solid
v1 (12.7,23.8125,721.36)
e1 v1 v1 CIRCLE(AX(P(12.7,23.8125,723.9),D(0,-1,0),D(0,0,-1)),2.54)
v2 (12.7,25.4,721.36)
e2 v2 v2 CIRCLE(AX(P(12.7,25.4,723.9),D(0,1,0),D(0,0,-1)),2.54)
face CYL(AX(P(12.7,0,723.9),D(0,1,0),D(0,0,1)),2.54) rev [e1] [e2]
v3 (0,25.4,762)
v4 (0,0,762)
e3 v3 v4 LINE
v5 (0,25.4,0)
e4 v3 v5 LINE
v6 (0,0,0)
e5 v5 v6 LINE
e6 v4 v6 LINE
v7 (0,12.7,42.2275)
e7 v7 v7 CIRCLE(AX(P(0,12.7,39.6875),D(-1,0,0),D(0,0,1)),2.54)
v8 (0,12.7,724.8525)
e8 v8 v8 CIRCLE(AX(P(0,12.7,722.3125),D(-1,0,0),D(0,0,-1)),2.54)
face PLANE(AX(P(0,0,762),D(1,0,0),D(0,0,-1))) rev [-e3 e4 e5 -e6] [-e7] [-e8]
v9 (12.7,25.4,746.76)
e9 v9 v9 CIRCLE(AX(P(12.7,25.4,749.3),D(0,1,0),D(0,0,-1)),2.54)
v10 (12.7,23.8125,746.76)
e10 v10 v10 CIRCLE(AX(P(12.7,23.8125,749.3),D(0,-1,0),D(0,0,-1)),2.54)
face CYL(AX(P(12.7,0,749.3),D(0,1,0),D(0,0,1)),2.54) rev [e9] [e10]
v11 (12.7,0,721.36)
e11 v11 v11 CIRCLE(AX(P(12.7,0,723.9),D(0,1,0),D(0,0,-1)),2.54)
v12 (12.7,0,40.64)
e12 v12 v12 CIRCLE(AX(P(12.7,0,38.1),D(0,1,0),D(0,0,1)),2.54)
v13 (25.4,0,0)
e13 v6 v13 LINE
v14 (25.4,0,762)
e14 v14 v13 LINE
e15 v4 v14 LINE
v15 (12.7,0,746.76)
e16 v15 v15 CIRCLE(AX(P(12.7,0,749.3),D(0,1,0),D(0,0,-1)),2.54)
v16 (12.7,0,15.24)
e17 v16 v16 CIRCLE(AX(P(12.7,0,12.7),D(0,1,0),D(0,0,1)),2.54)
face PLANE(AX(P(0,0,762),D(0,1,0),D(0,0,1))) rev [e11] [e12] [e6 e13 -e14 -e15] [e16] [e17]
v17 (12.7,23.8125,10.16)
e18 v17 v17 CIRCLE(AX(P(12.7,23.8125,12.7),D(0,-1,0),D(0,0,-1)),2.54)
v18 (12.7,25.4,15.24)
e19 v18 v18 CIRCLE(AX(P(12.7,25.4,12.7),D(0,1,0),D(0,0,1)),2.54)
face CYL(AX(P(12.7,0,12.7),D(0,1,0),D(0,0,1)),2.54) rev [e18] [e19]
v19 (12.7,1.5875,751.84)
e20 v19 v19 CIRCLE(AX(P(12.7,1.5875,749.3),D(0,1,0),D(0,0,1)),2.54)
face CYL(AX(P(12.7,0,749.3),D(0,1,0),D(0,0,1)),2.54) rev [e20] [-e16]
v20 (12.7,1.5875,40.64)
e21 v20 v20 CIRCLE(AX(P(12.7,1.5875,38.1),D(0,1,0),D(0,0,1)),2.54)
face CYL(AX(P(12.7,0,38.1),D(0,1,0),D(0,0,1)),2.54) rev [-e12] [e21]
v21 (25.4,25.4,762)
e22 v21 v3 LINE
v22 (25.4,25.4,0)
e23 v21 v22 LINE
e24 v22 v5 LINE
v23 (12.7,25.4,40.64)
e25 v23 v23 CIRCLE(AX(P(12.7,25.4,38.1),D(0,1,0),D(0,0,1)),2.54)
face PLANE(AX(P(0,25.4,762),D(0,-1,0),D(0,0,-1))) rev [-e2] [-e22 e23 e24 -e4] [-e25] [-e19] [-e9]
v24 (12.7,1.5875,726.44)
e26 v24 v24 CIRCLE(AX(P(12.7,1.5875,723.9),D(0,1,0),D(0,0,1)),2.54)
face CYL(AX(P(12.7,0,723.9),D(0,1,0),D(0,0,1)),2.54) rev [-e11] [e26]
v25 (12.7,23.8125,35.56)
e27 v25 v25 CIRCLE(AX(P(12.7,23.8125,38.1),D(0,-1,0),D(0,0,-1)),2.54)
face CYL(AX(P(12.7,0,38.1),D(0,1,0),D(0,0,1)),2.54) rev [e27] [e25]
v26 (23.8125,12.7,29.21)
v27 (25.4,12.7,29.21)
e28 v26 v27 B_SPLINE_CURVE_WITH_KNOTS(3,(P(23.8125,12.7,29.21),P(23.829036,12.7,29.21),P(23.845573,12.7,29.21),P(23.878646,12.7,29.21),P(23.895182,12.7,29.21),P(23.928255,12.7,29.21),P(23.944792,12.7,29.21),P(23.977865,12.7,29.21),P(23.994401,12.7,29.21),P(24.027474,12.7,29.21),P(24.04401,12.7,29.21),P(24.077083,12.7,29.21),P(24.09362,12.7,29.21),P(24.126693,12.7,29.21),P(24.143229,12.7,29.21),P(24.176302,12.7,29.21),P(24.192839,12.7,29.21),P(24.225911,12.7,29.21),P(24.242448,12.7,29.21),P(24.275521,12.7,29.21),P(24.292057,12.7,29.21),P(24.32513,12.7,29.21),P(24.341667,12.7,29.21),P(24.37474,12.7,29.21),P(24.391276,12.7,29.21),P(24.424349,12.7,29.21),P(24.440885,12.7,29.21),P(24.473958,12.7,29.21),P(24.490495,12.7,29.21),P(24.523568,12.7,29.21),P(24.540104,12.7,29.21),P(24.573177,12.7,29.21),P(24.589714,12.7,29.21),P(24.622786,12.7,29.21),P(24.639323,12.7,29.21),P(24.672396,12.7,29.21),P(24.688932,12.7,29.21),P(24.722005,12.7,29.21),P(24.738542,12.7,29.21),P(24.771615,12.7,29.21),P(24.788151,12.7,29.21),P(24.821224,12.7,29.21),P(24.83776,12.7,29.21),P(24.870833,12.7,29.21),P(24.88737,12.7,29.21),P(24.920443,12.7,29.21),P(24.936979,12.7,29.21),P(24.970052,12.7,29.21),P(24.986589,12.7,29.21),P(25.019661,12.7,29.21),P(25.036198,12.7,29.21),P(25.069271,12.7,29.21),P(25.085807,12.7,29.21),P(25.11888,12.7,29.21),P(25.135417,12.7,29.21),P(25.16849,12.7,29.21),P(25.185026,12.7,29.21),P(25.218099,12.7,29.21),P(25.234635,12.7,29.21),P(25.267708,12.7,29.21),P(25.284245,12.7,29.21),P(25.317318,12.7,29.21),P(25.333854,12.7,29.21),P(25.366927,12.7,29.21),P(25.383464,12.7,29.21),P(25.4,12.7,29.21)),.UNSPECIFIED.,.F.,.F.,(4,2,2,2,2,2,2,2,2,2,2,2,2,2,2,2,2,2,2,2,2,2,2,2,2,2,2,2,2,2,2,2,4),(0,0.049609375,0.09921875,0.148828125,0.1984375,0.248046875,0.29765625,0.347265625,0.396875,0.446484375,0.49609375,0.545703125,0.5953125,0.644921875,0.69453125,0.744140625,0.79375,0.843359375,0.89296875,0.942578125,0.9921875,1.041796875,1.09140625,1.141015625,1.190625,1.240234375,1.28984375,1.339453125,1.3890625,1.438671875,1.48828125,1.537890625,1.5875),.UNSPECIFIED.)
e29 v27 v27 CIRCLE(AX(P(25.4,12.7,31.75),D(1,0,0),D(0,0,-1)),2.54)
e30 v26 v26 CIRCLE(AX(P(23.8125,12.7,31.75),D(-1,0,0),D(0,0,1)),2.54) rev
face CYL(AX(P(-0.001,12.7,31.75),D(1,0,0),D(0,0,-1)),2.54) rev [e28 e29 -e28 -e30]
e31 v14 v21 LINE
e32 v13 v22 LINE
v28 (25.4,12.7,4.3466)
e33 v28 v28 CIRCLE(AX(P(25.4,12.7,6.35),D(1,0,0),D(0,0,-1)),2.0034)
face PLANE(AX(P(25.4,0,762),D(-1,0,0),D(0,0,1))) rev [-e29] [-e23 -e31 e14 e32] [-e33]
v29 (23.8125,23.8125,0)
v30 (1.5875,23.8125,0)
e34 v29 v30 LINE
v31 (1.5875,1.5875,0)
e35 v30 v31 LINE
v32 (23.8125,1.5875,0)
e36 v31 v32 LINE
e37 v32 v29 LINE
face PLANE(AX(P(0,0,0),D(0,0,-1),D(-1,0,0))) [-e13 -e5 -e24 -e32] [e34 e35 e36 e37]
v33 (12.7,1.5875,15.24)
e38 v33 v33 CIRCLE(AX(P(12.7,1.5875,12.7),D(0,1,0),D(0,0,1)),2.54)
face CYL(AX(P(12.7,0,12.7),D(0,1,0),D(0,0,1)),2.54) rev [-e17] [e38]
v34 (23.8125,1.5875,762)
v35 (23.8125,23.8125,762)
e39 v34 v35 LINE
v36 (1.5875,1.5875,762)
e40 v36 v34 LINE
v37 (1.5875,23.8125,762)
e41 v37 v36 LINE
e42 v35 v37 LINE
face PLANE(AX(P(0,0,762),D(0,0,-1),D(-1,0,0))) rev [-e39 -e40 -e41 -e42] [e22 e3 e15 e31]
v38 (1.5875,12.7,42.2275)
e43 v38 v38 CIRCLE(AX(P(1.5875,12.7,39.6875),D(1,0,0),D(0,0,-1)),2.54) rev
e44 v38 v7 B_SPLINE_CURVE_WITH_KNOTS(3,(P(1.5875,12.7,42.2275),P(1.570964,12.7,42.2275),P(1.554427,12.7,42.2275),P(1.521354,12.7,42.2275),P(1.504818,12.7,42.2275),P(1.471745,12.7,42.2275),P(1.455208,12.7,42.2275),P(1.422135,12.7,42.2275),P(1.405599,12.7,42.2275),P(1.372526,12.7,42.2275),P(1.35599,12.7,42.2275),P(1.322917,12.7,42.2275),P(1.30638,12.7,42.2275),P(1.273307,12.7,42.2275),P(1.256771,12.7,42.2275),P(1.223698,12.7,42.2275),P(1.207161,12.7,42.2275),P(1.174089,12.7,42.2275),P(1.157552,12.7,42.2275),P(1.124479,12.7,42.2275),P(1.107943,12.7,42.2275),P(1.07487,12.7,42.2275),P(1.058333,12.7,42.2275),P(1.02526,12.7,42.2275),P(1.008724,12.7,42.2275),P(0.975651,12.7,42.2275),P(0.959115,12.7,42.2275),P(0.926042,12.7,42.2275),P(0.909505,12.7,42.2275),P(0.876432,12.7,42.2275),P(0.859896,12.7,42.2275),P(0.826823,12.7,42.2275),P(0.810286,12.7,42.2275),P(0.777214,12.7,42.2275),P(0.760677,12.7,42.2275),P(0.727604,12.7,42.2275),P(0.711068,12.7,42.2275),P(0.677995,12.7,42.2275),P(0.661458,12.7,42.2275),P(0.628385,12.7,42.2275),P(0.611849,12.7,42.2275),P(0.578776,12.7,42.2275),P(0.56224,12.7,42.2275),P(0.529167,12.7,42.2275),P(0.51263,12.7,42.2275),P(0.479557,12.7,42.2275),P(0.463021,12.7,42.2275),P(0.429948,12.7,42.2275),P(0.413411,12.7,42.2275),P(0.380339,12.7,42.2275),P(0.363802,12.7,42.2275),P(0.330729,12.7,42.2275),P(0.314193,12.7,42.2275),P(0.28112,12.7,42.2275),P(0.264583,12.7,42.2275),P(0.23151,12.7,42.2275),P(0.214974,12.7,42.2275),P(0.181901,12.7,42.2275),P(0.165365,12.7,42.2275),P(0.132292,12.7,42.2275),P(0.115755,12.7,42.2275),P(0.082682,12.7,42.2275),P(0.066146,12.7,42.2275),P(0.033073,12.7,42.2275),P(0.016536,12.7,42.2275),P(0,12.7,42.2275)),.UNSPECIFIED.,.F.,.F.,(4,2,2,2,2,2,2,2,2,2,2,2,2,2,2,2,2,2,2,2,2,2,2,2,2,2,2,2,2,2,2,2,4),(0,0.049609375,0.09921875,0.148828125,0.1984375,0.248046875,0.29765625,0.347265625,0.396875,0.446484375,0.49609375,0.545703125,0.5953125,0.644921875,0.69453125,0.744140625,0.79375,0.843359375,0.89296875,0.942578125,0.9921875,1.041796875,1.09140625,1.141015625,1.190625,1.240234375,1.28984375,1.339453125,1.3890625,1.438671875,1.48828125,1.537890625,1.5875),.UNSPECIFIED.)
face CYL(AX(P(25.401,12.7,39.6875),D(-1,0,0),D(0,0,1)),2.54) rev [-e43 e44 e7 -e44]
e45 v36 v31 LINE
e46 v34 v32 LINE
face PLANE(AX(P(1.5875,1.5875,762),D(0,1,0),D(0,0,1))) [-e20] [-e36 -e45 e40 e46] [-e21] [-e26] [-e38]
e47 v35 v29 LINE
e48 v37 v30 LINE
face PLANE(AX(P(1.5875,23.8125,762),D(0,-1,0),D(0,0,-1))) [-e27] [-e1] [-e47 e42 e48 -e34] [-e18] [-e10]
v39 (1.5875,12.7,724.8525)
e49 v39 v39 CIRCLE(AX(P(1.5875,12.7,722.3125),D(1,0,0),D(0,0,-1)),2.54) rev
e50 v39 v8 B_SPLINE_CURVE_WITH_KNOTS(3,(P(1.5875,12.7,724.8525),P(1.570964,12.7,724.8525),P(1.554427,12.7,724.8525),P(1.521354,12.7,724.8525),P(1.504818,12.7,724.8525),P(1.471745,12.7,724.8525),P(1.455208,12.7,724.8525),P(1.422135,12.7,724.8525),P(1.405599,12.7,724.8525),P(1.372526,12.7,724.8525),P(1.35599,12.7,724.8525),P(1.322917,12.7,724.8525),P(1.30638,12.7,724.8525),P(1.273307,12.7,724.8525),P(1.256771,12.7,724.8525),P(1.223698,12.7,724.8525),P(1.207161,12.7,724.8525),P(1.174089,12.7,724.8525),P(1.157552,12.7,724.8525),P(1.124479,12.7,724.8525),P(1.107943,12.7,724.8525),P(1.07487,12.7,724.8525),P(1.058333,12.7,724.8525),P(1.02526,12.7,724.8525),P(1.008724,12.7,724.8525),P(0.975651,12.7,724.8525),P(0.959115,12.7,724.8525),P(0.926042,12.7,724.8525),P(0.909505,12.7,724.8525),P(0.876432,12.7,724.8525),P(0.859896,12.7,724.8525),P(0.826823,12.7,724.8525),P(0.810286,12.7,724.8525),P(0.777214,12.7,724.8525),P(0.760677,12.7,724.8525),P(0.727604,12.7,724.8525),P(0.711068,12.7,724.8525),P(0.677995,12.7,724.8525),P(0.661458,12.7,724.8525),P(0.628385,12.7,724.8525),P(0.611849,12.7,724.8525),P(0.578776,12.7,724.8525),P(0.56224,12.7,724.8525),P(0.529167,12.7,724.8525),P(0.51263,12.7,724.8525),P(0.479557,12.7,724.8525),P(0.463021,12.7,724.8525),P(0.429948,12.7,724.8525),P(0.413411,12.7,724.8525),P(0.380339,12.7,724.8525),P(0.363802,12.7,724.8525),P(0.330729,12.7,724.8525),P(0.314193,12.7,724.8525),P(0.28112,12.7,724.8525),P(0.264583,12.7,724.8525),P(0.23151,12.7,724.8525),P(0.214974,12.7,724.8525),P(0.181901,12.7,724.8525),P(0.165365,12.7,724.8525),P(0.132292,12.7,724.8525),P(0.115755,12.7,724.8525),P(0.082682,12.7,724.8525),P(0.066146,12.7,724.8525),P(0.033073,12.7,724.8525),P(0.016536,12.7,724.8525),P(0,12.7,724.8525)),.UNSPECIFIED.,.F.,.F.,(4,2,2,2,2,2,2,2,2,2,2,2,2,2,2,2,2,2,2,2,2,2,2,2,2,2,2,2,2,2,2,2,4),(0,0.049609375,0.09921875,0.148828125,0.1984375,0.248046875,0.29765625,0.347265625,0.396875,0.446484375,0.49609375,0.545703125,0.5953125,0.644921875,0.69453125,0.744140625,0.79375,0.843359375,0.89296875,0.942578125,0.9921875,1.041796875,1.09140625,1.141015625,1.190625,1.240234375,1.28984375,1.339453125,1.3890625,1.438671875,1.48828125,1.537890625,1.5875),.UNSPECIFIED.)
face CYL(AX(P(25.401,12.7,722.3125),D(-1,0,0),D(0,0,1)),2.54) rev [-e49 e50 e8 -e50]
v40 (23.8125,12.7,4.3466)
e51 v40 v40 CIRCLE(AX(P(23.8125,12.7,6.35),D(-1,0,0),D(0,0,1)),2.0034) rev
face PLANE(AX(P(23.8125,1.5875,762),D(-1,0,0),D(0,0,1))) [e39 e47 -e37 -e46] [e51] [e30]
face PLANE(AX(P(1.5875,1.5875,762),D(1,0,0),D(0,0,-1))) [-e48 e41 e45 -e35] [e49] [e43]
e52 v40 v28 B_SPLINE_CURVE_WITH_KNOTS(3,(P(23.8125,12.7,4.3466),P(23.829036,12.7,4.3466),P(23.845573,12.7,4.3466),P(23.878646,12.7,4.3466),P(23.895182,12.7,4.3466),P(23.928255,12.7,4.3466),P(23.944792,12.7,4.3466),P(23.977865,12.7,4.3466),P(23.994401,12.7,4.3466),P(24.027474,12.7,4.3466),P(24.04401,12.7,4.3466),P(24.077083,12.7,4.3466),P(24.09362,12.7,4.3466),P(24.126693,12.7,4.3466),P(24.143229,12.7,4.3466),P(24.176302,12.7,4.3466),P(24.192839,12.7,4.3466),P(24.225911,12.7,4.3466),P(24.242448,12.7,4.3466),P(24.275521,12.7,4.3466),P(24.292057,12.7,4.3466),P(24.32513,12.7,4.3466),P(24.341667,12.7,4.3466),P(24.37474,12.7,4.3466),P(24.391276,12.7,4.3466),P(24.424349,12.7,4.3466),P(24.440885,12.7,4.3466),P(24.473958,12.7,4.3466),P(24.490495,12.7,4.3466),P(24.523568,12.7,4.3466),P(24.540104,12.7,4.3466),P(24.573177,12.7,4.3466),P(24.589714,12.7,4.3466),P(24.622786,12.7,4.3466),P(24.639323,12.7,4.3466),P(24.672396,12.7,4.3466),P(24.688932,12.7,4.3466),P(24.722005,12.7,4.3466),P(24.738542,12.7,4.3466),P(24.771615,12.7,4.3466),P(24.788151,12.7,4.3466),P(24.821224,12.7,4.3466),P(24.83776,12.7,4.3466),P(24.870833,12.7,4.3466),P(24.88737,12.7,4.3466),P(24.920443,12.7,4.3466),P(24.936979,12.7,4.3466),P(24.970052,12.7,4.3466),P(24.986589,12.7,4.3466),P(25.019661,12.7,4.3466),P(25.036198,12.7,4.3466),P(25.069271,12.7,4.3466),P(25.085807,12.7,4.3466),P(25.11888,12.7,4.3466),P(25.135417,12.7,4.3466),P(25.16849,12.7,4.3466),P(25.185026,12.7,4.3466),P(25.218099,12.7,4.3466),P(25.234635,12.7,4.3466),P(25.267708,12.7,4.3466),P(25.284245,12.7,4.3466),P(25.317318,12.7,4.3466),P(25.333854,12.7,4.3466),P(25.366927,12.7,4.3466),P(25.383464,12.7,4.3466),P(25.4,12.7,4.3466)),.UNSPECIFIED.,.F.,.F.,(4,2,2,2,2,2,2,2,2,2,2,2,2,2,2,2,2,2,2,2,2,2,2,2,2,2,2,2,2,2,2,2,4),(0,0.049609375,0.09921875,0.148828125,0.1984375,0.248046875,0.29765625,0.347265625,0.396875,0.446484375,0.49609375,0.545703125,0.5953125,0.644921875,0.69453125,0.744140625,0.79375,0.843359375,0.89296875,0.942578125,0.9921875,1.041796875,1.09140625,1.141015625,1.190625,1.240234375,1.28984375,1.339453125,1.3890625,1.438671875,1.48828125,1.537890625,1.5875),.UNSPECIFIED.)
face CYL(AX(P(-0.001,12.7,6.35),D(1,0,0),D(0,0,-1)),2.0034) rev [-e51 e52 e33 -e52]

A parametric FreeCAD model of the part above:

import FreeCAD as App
import Part
import Sketcher
Q = App.Units.Quantity


def add_polygon(sketch, points):
    """Adds a closed chain of lines whose ends are joined by coincident constraints."""
    first, n = sketch.GeometryCount, len(points)
    for a, b in zip(points, points[1:] + points[:1]):
        sketch.addGeometry(Part.LineSegment(App.Vector(*a, 0), App.Vector(*b, 0)), False)
    for i in range(n):
        sketch.addConstraint(Sketcher.Constraint("Coincident", first + i, 2, first + (i + 1) % n, 1))

doc = App.newDocument("Part")
body = doc.addObject("PartDesign::Body", "Body")

sketch1 = body.newObject("Sketcher::SketchObject", "Sketch")
sketch1.AttachmentSupport = (doc.getObject("XY_Plane"), [""])
sketch1.MapMode = "FlatFace"
add_polygon(sketch1, [(0, 25.4), (0, 0), (25.4, 0), (25.4, 25.4)])
add_polygon(sketch1, [(23.8125, 1.5875), (1.5875, 1.5875), (1.5875, 23.8125), (23.8125, 23.8125)])
sketch1.addConstraint([
    Sketcher.Constraint("Vertical", 0),
    Sketcher.Constraint("Horizontal", 1),
    Sketcher.Constraint("Vertical", 2),
    Sketcher.Constraint("Horizontal", 3),
    Sketcher.Constraint("Horizontal", 4),
    Sketcher.Constraint("Vertical", 5),
    Sketcher.Constraint("Horizontal", 6),
    Sketcher.Constraint("Vertical", 7),
    Sketcher.Constraint("Coincident", 0, 2, -1, 1),
    Sketcher.Constraint("Equal", 3, 0),
    Sketcher.Constraint("Equal", 6, 5),
    Sketcher.Constraint("DistanceX", 1, 1, 1, 2, Q("1 in")),
    Sketcher.Constraint("DistanceX", 4, 2, 4, 1, Q("0.875 in")),
    Sketcher.Constraint("DistanceX", -1, 1, 4, 2, Q("0.0625 in")),
    Sketcher.Constraint("DistanceY", -1, 1, 4, 2, Q("0.0625 in")),
])
pad1 = body.newObject("PartDesign::Pad", "Pad")
pad1.Profile = sketch1
pad1.Length = Q("30 in")

sketch2 = body.newObject("Sketcher::SketchObject", "Sketch001")
sketch2.AttachmentSupport = (doc.getObject("XZ_Plane"), [""])
sketch2.MapMode = "FlatFace"
sketch2.AttachmentOffset = App.Placement(App.Vector(0, 0, -1 * 25.4), App.Rotation())
sketch2.addGeometry([
    Part.Circle(App.Vector(12.7, 12.7, 0), App.Vector(0, 0, 1), 2.54),
    Part.Circle(App.Vector(12.7, 38.1, 0), App.Vector(0, 0, 1), 2.54),
    Part.Circle(App.Vector(12.7, 723.9, 0), App.Vector(0, 0, 1), 2.54),
    Part.Circle(App.Vector(12.7, 749.3, 0), App.Vector(0, 0, 1), 2.54),
], False)
sketch2.addConstraint([
    Sketcher.Constraint("Equal", 0, 1),
    Sketcher.Constraint("Equal", 1, 2),
    Sketcher.Constraint("Equal", 2, 3),
    Sketcher.Constraint("Vertical", 0, 3, 1, 3),
    Sketcher.Constraint("Vertical", 1, 3, 2, 3),
    Sketcher.Constraint("Vertical", 2, 3, 3, 3),
    Sketcher.Constraint("Diameter", 0, Q("0.2 in")),
    Sketcher.Constraint("DistanceY", 0, 3, 1, 3, Q("1 in")),
    Sketcher.Constraint("DistanceY", 1, 3, 2, 3, Q("27 in")),
    Sketcher.Constraint("DistanceY", 2, 3, 3, 3, Q("1 in")),
    Sketcher.Constraint("DistanceX", -1, 1, 0, 3, Q("0.5 in")),
    Sketcher.Constraint("DistanceY", -1, 1, 0, 3, Q("0.5 in")),
])
pocket1 = body.newObject("PartDesign::Pocket", "Pocket")
pocket1.Profile = sketch2
pocket1.Type = "ThroughAll"
pocket1.Reversed = True

sketch3 = body.newObject("Sketcher::SketchObject", "Sketch002")
sketch3.AttachmentSupport = (doc.getObject("YZ_Plane"), [""])
sketch3.MapMode = "FlatFace"
sketch3.AttachmentOffset = App.Placement(App.Vector(0, 0, 1 * 25.4), App.Rotation())
sketch3.addGeometry(Part.Circle(App.Vector(12.7, 6.35, 0), App.Vector(0, 0, 1), 2.0034), False)
sketch3.addConstraint([
    Sketcher.Constraint("DistanceX", -1, 1, 0, 3, Q("0.5 in")),
    Sketcher.Constraint("Diameter", 0, 4.0068),
    Sketcher.Constraint("DistanceY", -1, 1, 0, 3, Q("0.25 in")),
])
pocket2 = body.newObject("PartDesign::Pocket", "Pocket001")
pocket2.Profile = sketch3
pocket2.Type = "UpToFirst"

sketch4 = body.newObject("Sketcher::SketchObject", "Sketch003")
sketch4.AttachmentSupport = (doc.getObject("YZ_Plane"), [""])
sketch4.MapMode = "FlatFace"
sketch4.AttachmentOffset = App.Placement(App.Vector(0, 0, 1 * 25.4), App.Rotation())
sketch4.addGeometry(Part.Circle(App.Vector(12.7, 31.75, 0), App.Vector(0, 0, 1), 2.54), False)
sketch4.addConstraint([
    Sketcher.Constraint("Diameter", 0, Q("0.2 in")),
    Sketcher.Constraint("DistanceX", -1, 1, 0, 3, Q("0.5 in")),
    Sketcher.Constraint("DistanceY", -1, 1, 0, 3, Q("1.25 in")),
])
pocket3 = body.newObject("PartDesign::Pocket", "Pocket002")
pocket3.Profile = sketch4
pocket3.Type = "UpToFirst"

sketch5 = body.newObject("Sketcher::SketchObject", "Sketch004")
sketch5.AttachmentSupport = (doc.getObject("YZ_Plane"), [""])
sketch5.MapMode = "FlatFace"
sketch5.addGeometry(Part.Circle(App.Vector(12.7, 39.6875, 0), App.Vector(0, 0, 1), 2.54), False)
sketch5.addConstraint([
    Sketcher.Constraint("Diameter", 0, Q("0.2 in")),
    Sketcher.Constraint("DistanceX", -1, 1, 0, 3, Q("0.5 in")),
    Sketcher.Constraint("DistanceY", -1, 1, 0, 3, Q("1.5625 in")),
])
pocket4 = body.newObject("PartDesign::Pocket", "Pocket003")
pocket4.Profile = sketch5
pocket4.Type = "UpToFirst"
pocket4.Reversed = True

sketch6 = body.newObject("Sketcher::SketchObject", "Sketch005")
sketch6.AttachmentSupport = (doc.getObject("YZ_Plane"), [""])
sketch6.MapMode = "FlatFace"
sketch6.addGeometry(Part.Circle(App.Vector(12.7, 722.3125, 0), App.Vector(0, 0, 1), 2.54), False)
sketch6.addConstraint([
    Sketcher.Constraint("Diameter", 0, Q("0.2 in")),
    Sketcher.Constraint("DistanceX", -1, 1, 0, 3, Q("0.5 in")),
    Sketcher.Constraint("DistanceY", -1, 1, 0, 3, Q("28.4375 in")),
])
pocket5 = body.newObject("PartDesign::Pocket", "Pocket004")
pocket5.Profile = sketch6
pocket5.Type = "UpToFirst"
pocket5.Reversed = True

doc.recompute()
